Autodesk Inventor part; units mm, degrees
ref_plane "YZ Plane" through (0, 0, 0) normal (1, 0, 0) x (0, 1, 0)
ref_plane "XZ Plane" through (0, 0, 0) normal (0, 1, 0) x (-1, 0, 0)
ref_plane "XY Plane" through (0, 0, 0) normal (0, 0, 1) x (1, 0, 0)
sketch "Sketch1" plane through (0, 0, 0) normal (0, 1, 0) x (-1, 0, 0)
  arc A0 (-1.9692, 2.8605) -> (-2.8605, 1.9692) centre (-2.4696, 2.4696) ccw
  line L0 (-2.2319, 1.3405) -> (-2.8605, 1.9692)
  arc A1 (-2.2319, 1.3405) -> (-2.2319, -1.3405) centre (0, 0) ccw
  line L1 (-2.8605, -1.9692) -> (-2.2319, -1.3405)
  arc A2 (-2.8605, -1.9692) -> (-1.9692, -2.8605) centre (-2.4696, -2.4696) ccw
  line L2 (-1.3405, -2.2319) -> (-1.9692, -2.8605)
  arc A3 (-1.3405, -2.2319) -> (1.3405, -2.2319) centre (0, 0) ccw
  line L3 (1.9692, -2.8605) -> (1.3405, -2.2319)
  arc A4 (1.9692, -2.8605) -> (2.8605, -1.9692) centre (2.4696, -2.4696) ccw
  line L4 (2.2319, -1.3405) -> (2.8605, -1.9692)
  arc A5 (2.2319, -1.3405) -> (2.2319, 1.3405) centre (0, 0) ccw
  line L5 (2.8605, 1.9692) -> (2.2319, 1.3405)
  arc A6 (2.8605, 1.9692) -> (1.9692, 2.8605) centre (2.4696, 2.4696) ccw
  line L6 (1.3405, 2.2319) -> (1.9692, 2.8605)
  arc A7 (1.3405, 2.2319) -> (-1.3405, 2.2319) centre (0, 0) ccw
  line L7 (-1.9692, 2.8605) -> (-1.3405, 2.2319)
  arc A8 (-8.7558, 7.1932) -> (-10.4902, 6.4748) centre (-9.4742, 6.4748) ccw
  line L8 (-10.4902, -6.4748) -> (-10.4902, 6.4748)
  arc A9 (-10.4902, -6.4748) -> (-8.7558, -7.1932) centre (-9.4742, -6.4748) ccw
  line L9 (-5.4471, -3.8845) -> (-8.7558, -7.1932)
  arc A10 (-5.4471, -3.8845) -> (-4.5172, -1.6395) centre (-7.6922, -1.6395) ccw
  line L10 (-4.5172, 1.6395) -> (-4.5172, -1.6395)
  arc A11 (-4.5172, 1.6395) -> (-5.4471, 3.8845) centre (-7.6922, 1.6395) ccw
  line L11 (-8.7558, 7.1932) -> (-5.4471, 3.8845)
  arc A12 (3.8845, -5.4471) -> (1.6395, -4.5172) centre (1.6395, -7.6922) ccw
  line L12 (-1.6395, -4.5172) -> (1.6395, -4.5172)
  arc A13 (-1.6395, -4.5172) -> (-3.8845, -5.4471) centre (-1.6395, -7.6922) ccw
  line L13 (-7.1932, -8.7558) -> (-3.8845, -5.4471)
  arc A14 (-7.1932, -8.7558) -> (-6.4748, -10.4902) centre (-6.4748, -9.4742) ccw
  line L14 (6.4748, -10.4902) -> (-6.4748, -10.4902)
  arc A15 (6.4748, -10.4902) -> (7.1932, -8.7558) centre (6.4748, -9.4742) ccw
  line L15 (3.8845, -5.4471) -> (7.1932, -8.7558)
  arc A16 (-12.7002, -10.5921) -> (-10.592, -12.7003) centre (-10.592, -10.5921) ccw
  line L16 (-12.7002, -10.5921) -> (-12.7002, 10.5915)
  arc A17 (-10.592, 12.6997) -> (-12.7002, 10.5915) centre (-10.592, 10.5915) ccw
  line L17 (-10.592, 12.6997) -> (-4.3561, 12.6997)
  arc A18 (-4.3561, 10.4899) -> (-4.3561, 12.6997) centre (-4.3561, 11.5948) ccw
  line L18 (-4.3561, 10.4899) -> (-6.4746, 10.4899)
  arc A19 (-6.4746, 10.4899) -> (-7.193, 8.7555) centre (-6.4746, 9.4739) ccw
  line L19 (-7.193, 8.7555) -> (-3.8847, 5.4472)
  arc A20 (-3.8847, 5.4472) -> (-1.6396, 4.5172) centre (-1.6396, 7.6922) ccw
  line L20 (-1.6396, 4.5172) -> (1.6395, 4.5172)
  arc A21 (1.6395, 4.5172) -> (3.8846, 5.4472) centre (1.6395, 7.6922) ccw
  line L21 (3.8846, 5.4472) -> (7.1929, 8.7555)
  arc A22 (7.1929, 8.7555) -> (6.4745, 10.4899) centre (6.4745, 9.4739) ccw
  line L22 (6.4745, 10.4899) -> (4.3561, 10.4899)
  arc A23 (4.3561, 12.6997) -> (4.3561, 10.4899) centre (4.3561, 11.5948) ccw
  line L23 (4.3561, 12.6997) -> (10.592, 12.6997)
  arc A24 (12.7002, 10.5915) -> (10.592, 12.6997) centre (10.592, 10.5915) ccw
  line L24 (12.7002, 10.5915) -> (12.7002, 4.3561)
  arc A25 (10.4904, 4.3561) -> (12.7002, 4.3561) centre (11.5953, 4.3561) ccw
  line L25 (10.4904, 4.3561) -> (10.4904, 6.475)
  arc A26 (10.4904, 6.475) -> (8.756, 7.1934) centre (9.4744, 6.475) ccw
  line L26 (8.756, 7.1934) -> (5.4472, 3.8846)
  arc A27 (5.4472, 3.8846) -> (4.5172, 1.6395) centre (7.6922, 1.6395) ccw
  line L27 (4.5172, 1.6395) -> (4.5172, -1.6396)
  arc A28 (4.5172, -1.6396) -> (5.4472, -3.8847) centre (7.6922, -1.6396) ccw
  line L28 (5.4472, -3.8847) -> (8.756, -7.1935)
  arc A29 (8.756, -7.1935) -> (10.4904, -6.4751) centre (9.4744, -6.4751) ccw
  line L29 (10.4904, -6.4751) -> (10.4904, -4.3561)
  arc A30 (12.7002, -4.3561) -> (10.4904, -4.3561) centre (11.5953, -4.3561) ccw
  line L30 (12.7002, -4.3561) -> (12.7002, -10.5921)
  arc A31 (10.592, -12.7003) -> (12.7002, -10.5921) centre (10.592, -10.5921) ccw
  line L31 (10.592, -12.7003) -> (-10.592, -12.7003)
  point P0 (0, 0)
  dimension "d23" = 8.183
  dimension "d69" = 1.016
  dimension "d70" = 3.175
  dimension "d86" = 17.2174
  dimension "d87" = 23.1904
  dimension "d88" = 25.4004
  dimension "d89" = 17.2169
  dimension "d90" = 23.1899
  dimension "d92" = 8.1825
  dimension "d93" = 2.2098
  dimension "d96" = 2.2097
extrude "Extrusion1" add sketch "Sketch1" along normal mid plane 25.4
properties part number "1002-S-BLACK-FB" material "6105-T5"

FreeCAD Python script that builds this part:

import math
import FreeCAD as App
import Part
import Sketcher
from FreeCAD import Vector
Q = App.Units.Quantity

doc = App.newDocument("Part")
body = doc.addObject("PartDesign::Body", "Body")

# Sketch on XZ plane
sketch1 = body.newObject("Sketcher::SketchObject", "Sketch")
sketch1.AttachmentSupport = (doc.getObject("XZ_Plane"), [""])
sketch1.MapMode = "FlatFace"
sketch1.addGeometry([
    Part.LineSegment(Vector(12.7, 10.6, 0), Vector(12.7, -10.6, 0)),  # 0
    Part.ArcOfCircle(Part.Circle(Vector(10.6, -10.6, 0), Vector(0, 0, 1), 2.1), math.radians(-90), math.radians(0)),  # 1
    Part.LineSegment(Vector(10.6, -12.7, 0), Vector(-10.6, -12.7, 0)),  # 2
    Part.ArcOfCircle(Part.Circle(Vector(-10.6, -10.6, 0), Vector(0, 0, 1), 2.1), math.radians(180), math.radians(270)),  # 3
    Part.LineSegment(Vector(-12.7, -10.6, 0), Vector(-12.7, -4.4, 0)),  # 4
    Part.ArcOfCircle(Part.Circle(Vector(-11.6, -4.4, 0), Vector(0, 0, 1), 1.1), math.radians(0), math.radians(180)),  # 5
    Part.LineSegment(Vector(-10.5, -4.4, 0), Vector(-10.5, -6.5, 0)),  # 6
    Part.ArcOfCircle(Part.Circle(Vector(-9.5, -6.5, 0), Vector(0, 0, 1), 1), math.radians(180), math.radians(315)),  # 7
    Part.LineSegment(Vector(-8.8, -7.2, 0), Vector(-5.4, -3.9, 0)),  # 8
    Part.ArcOfCircle(Part.Circle(Vector(-7.7, -1.6, 0), Vector(0, 0, 1), 3.2), math.radians(-45), math.radians(0)),  # 9
    Part.LineSegment(Vector(-4.5, -1.6, 0), Vector(-4.5, 1.6, 0)),  # 10
    Part.ArcOfCircle(Part.Circle(Vector(-7.7, 1.6, 0), Vector(0, 0, 1), 3.2), math.radians(0), math.radians(45)),  # 11
    Part.LineSegment(Vector(-5.4, 3.9, 0), Vector(-8.8, 7.2, 0)),  # 12
    Part.ArcOfCircle(Part.Circle(Vector(-9.5, 6.5, 0), Vector(0, 0, 1), 1), math.radians(45), math.radians(180)),  # 13
    Part.LineSegment(Vector(-10.5, 6.5, 0), Vector(-10.5, 4.4, 0)),  # 14
    Part.ArcOfCircle(Part.Circle(Vector(-11.6, 4.4, 0), Vector(0, 0, 1), 1.1), math.radians(180), math.radians(360)),  # 15
    Part.LineSegment(Vector(-12.7, 4.4, 0), Vector(-12.7, 10.6, 0)),  # 16
    Part.ArcOfCircle(Part.Circle(Vector(-10.6, 10.6, 0), Vector(0, 0, 1), 2.1), math.radians(90), math.radians(180)),  # 17
    Part.LineSegment(Vector(-10.6, 12.7, 0), Vector(-4.4, 12.7, 0)),  # 18
    Part.ArcOfCircle(Part.Circle(Vector(-4.4, 11.6, 0), Vector(0, 0, 1), 1.1), math.radians(-90), math.radians(90)),  # 19
    Part.LineSegment(Vector(-4.4, 10.5, 0), Vector(-6.5, 10.5, 0)),  # 20
    Part.ArcOfCircle(Part.Circle(Vector(-6.5, 9.5, 0), Vector(0, 0, 1), 1), math.radians(90), math.radians(225)),  # 21
    Part.LineSegment(Vector(-7.2, 8.8, 0), Vector(-3.9, 5.4, 0)),  # 22
    Part.ArcOfCircle(Part.Circle(Vector(-1.6, 7.7, 0), Vector(0, 0, 1), 3.2), math.radians(-135), math.radians(-90)),  # 23
    Part.LineSegment(Vector(-1.6, 4.5, 0), Vector(1.6, 4.5, 0)),  # 24
    Part.ArcOfCircle(Part.Circle(Vector(1.6, 7.7, 0), Vector(0, 0, 1), 3.2), math.radians(-90), math.radians(-45)),  # 25
    Part.LineSegment(Vector(3.9, 5.4, 0), Vector(7.2, 8.8, 0)),  # 26
    Part.ArcOfCircle(Part.Circle(Vector(6.5, 9.5, 0), Vector(0, 0, 1), 1), math.radians(-45), math.radians(90)),  # 27
    Part.LineSegment(Vector(6.5, 10.5, 0), Vector(4.4, 10.5, 0)),  # 28
    Part.ArcOfCircle(Part.Circle(Vector(4.4, 11.6, 0), Vector(0, 0, 1), 1.1), math.radians(90), math.radians(270)),  # 29
    Part.LineSegment(Vector(4.4, 12.7, 0), Vector(10.6, 12.7, 0)),  # 30
    Part.ArcOfCircle(Part.Circle(Vector(10.6, 10.6, 0), Vector(0, 0, 1), 2.1), math.radians(0), math.radians(90)),  # 31
    Part.ArcOfCircle(Part.Circle(Vector(-1.6, -7.7, 0), Vector(0, 0, 1), 3.2), math.radians(90), math.radians(135)),  # 32
    Part.LineSegment(Vector(-3.9, -5.4, 0), Vector(-7.2, -8.8, 0)),  # 33
    Part.ArcOfCircle(Part.Circle(Vector(-6.5, -9.5, 0), Vector(0, 0, 1), 1), math.radians(135), math.radians(270)),  # 34
    Part.LineSegment(Vector(-6.5, -10.5, 0), Vector(6.5, -10.5, 0)),  # 35
    Part.ArcOfCircle(Part.Circle(Vector(6.5, -9.5, 0), Vector(0, 0, 1), 1), math.radians(-90), math.radians(45)),  # 36
    Part.LineSegment(Vector(7.2, -8.8, 0), Vector(3.9, -5.4, 0)),  # 37
    Part.ArcOfCircle(Part.Circle(Vector(1.6, -7.7, 0), Vector(0, 0, 1), 3.2), math.radians(45), math.radians(90)),  # 38
    Part.LineSegment(Vector(1.6, -4.5, 0), Vector(-1.6, -4.5, 0)),  # 39
    Part.ArcOfCircle(Part.Circle(Vector(9.5, 6.5, 0), Vector(0, 0, 1), 1), math.radians(0), math.radians(135)),  # 40
    Part.LineSegment(Vector(8.8, 7.2, 0), Vector(5.4, 3.9, 0)),  # 41
    Part.ArcOfCircle(Part.Circle(Vector(7.7, 1.6, 0), Vector(0, 0, 1), 3.2), math.radians(135), math.radians(180)),  # 42
    Part.LineSegment(Vector(4.5, 1.6, 0), Vector(4.5, -1.6, 0)),  # 43
    Part.ArcOfCircle(Part.Circle(Vector(7.7, -1.6, 0), Vector(0, 0, 1), 3.2), math.radians(180), math.radians(225)),  # 44
    Part.LineSegment(Vector(5.4, -3.9, 0), Vector(8.8, -7.2, 0)),  # 45
    Part.ArcOfCircle(Part.Circle(Vector(9.5, -6.5, 0), Vector(0, 0, 1), 1), math.radians(-135), math.radians(0)),  # 46
    Part.LineSegment(Vector(10.5, -6.5, 0), Vector(10.5, 6.5, 0)),  # 47
    Part.ArcOfCircle(Part.Circle(Vector(2.5, 2.5, 0), Vector(0, 0, 1), 0.6), math.radians(-52), math.radians(142)),  # 48
    Part.LineSegment(Vector(2, 2.9, 0), Vector(1.3, 2.2, 0)),  # 49
    Part.ArcOfCircle(Part.Circle(Vector(0, 0, 0), Vector(0, 0, 1), 2.6), math.radians(59), math.radians(121)),  # 50
    Part.LineSegment(Vector(-1.3, 2.2, 0), Vector(-2, 2.9, 0)),  # 51
    Part.ArcOfCircle(Part.Circle(Vector(-2.5, 2.5, 0), Vector(0, 0, 1), 0.6), math.radians(38), math.radians(232)),  # 52
    Part.LineSegment(Vector(-2.9, 2, 0), Vector(-2.2, 1.3, 0)),  # 53
    Part.ArcOfCircle(Part.Circle(Vector(0, 0, 0), Vector(0, 0, 1), 2.6), math.radians(149), math.radians(211)),  # 54
    Part.LineSegment(Vector(-2.2, -1.3, 0), Vector(-2.9, -2, 0)),  # 55
    Part.ArcOfCircle(Part.Circle(Vector(-2.5, -2.5, 0), Vector(0, 0, 1), 0.6), math.radians(128), math.radians(322)),  # 56
    Part.LineSegment(Vector(-2, -2.9, 0), Vector(-1.3, -2.2, 0)),  # 57
    Part.ArcOfCircle(Part.Circle(Vector(0, 0, 0), Vector(0, 0, 1), 2.6), math.radians(-121), math.radians(-59)),  # 58
    Part.LineSegment(Vector(1.3, -2.2, 0), Vector(2, -2.9, 0)),  # 59
    Part.ArcOfCircle(Part.Circle(Vector(2.5, -2.5, 0), Vector(0, 0, 1), 0.6), math.radians(-142), math.radians(52)),  # 60
    Part.LineSegment(Vector(2.9, -2, 0), Vector(2.2, -1.3, 0)),  # 61
    Part.ArcOfCircle(Part.Circle(Vector(0, 0, 0), Vector(0, 0, 1), 2.6), math.radians(-31), math.radians(31)),  # 62
    Part.LineSegment(Vector(2.2, 1.3, 0), Vector(2.9, 2, 0)),  # 63
], False)
sketch1.addConstraint([
    Sketcher.Constraint("Tangent", 0, 2, 1, 2),
    Sketcher.Constraint("Tangent", 1, 1, 2, 1),
    Sketcher.Constraint("Tangent", 2, 2, 3, 2),
    Sketcher.Constraint("Tangent", 3, 1, 4, 1),
    Sketcher.Constraint("Tangent", 4, 2, 5, 2),
    Sketcher.Constraint("Tangent", 5, 1, 6, 1),
    Sketcher.Constraint("Tangent", 6, 2, 7, 1),
    Sketcher.Constraint("Tangent", 7, 2, 8, 1),
    Sketcher.Constraint("Tangent", 8, 2, 9, 1),
    Sketcher.Constraint("Tangent", 9, 2, 10, 1),
    Sketcher.Constraint("Tangent", 10, 2, 11, 1),
    Sketcher.Constraint("Tangent", 11, 2, 12, 1),
    Sketcher.Constraint("Tangent", 12, 2, 13, 1),
    Sketcher.Constraint("Tangent", 13, 2, 14, 1),
    Sketcher.Constraint("Tangent", 14, 2, 15, 2),
    Sketcher.Constraint("Tangent", 15, 1, 16, 1),
    Sketcher.Constraint("Tangent", 16, 2, 17, 2),
    Sketcher.Constraint("Tangent", 17, 1, 18, 1),
    Sketcher.Constraint("Tangent", 18, 2, 19, 2),
    Sketcher.Constraint("Tangent", 19, 1, 20, 1),
    Sketcher.Constraint("Tangent", 20, 2, 21, 1),
    Sketcher.Constraint("Tangent", 21, 2, 22, 1),
    Sketcher.Constraint("Tangent", 22, 2, 23, 1),
    Sketcher.Constraint("Tangent", 23, 2, 24, 1),
    Sketcher.Constraint("Tangent", 24, 2, 25, 1),
    Sketcher.Constraint("Tangent", 25, 2, 26, 1),
    Sketcher.Constraint("Tangent", 26, 2, 27, 1),
    Sketcher.Constraint("Tangent", 27, 2, 28, 1),
    Sketcher.Constraint("Tangent", 28, 2, 29, 2),
    Sketcher.Constraint("Tangent", 29, 1, 30, 1),
    Sketcher.Constraint("Tangent", 30, 2, 31, 2),
    Sketcher.Constraint("Tangent", 31, 1, 0, 1),
    Sketcher.Constraint("Tangent", 32, 2, 33, 1),
    Sketcher.Constraint("Tangent", 33, 2, 34, 1),
    Sketcher.Constraint("Tangent", 34, 2, 35, 1),
    Sketcher.Constraint("Tangent", 35, 2, 36, 1),
    Sketcher.Constraint("Tangent", 36, 2, 37, 1),
    Sketcher.Constraint("Tangent", 37, 2, 38, 1),
    Sketcher.Constraint("Tangent", 38, 2, 39, 1),
    Sketcher.Constraint("Tangent", 39, 2, 32, 1),
    Sketcher.Constraint("Tangent", 40, 2, 41, 1),
    Sketcher.Constraint("Tangent", 41, 2, 42, 1),
    Sketcher.Constraint("Tangent", 42, 2, 43, 1),
    Sketcher.Constraint("Tangent", 43, 2, 44, 1),
    Sketcher.Constraint("Tangent", 44, 2, 45, 1),
    Sketcher.Constraint("Tangent", 45, 2, 46, 1),
    Sketcher.Constraint("Tangent", 46, 2, 47, 1),
    Sketcher.Constraint("Tangent", 47, 2, 40, 1),
    Sketcher.Constraint("Coincident", 48, 2, 49, 1),
    Sketcher.Constraint("Coincident", 49, 2, 50, 1),
    Sketcher.Constraint("Coincident", 50, 2, 51, 1),
    Sketcher.Constraint("Coincident", 51, 2, 52, 1),
    Sketcher.Constraint("Coincident", 52, 2, 53, 1),
    Sketcher.Constraint("Coincident", 53, 2, 54, 1),
    Sketcher.Constraint("Coincident", 54, 2, 55, 1),
    Sketcher.Constraint("Coincident", 55, 2, 56, 1),
    Sketcher.Constraint("Coincident", 56, 2, 57, 1),
    Sketcher.Constraint("Coincident", 57, 2, 58, 1),
    Sketcher.Constraint("Coincident", 58, 2, 59, 1),
    Sketcher.Constraint("Coincident", 59, 2, 60, 1),
    Sketcher.Constraint("Coincident", 60, 2, 61, 1),
    Sketcher.Constraint("Coincident", 61, 2, 62, 1),
    Sketcher.Constraint("Coincident", 62, 2, 63, 1),
    Sketcher.Constraint("Coincident", 63, 2, 48, 1),
    Sketcher.Constraint("Vertical", 0),
    Sketcher.Constraint("Horizontal", 2),
    Sketcher.Constraint("Vertical", 4),
    Sketcher.Constraint("Vertical", 6),
    Sketcher.Constraint("Vertical", 10),
    Sketcher.Constraint("Vertical", 14),
    Sketcher.Constraint("Vertical", 16),
    Sketcher.Constraint("Horizontal", 18),
    Sketcher.Constraint("Horizontal", 20),
    Sketcher.Constraint("Horizontal", 24),
    Sketcher.Constraint("Horizontal", 28),
    Sketcher.Constraint("Horizontal", 30),
    Sketcher.Constraint("Horizontal", 35),
    Sketcher.Constraint("Horizontal", 39),
    Sketcher.Constraint("Vertical", 43),
    Sketcher.Constraint("Vertical", 47),
    Sketcher.Constraint("Coincident", 50, 3, -1, 1),
    Sketcher.Constraint("Coincident", 54, 3, -1, 1),
    Sketcher.Constraint("Coincident", 58, 3, -1, 1),
    Sketcher.Constraint("Coincident", 62, 3, -1, 1),
    Sketcher.Constraint("Equal", 1, 3),
    Sketcher.Constraint("Equal", 9, 11),
    Sketcher.Constraint("Equal", 7, 13),
    Sketcher.Constraint("Equal", 5, 15),
    Sketcher.Constraint("Equal", 3, 17),
    Sketcher.Constraint("Equal", 15, 19),
    Sketcher.Constraint("Equal", 13, 21),
    Sketcher.Constraint("Equal", 11, 23),
    Sketcher.Constraint("Equal", 23, 25),
    Sketcher.Constraint("Equal", 21, 27),
    Sketcher.Constraint("Equal", 19, 29),
    Sketcher.Constraint("Equal", 17, 31),
    Sketcher.Constraint("Equal", 25, 32),
    Sketcher.Constraint("Equal", 27, 34),
    Sketcher.Constraint("Equal", 34, 36),
    Sketcher.Constraint("Equal", 32, 38),
    Sketcher.Constraint("Equal", 36, 40),
    Sketcher.Constraint("Equal", 38, 42),
    Sketcher.Constraint("Equal", 42, 44),
    Sketcher.Constraint("Equal", 40, 46),
    Sketcher.Constraint("Equal", 48, 52),
    Sketcher.Constraint("Equal", 50, 54),
    Sketcher.Constraint("Equal", 52, 56),
    Sketcher.Constraint("Equal", 54, 58),
    Sketcher.Constraint("Equal", 56, 60),
    Sketcher.Constraint("Equal", 58, 62),
    Sketcher.Constraint("Symmetric", 25, 3, 32, 3, -1, 1),
    Sketcher.Constraint("Symmetric", 27, 3, 34, 3, -1, 1),
    Sketcher.Constraint("Symmetric", 7, 3, 40, 3, -1, 1),
    Sketcher.Constraint("Symmetric", 9, 3, 42, 3, -1, 1),
    Sketcher.Constraint("Symmetric", 13, 3, 46, 3, -1, 1),
    Sketcher.Constraint("Symmetric", 48, 3, 56, 3, -1, 1),
    Sketcher.Constraint("Symmetric", 52, 3, 60, 3, -1, 1),
    Sketcher.Constraint("Symmetric", 22, 2, 37, 2, -1, 1),
    Sketcher.Constraint("Symmetric", 21, 3, 27, 3, -2),
    Sketcher.Constraint("Symmetric", 48, 3, 52, 3, -2),
    Sketcher.Constraint("Symmetric", 12, 2, 40, 2, -2),
    Sketcher.Constraint("Perpendicular", 8, 12),
    Sketcher.Constraint("Parallel", 12, 22),
    Sketcher.Constraint("Perpendicular", 22, 26),
    Sketcher.Constraint("Perpendicular", 41, 45),
    Sketcher.Constraint("Perpendicular", 45, 49),
    Sketcher.Constraint("Perpendicular", 49, 51),
    Sketcher.Constraint("Parallel", 51, 53),
    Sketcher.Constraint("Perpendicular", 53, 55),
    Sketcher.Constraint("Parallel", 55, 57),
    Sketcher.Constraint("Perpendicular", 57, 59),
    Sketcher.Constraint("Parallel", 59, 61),
    Sketcher.Constraint("Perpendicular", 61, 63),
    Sketcher.Constraint("Horizontal", 49, 2, 50, 2),
    Sketcher.Constraint("Horizontal", 57, 2, 58, 2),
    Sketcher.Constraint("Horizontal", 55, 2, 60, 2),
    Sketcher.Constraint("Horizontal", 53, 2, 62, 2),
    Sketcher.Constraint("Vertical", 53, 2, 54, 2),
    Sketcher.Constraint("Vertical", 51, 2, 56, 2),
    Sketcher.Constraint("Equal", 20, 28),
    Sketcher.Constraint("Equal", 18, 30),
    Sketcher.Constraint("Equal", 30, 4),
    Sketcher.Constraint("Equal", 39, 10),
    Sketcher.Constraint("Equal", 6, 14),
    Sketcher.Constraint("Equal", 35, 47),
    Sketcher.Constraint("Equal", 51, 53),
    Sketcher.Constraint("Radius", 7, Q("0.04 in")),
    Sketcher.Constraint("Radius", 9, Q("0.125 in")),
    Sketcher.Constraint("Radius", 5, Q("0.0435 in")),
    Sketcher.Constraint("Radius", 1, Q("0.083 in")),
    Sketcher.Constraint("Radius", 48, Q("0.025 in")),
    Sketcher.Constraint("DistanceX", -1, 1, 0, 2, Q("0.5 in")),
    Sketcher.Constraint("DistanceY", 1, 1, -1, 1, Q("0.5 in")),
    Sketcher.Constraint("DistanceY", -1, 1, 17, 1, Q("0.5 in")),
    Sketcher.Constraint("Radius", 50, Q("0.1025 in")),
    Sketcher.Constraint("Distance", 49, Q("0.035 in")),
    Sketcher.Constraint("DistanceX", 18, 1, 18, 2, Q("0.2455 in")),
    Sketcher.Constraint("DistanceX", 20, 2, 20, 1, Q("0.0834 in")),
    Sketcher.Constraint("DistanceX", 24, 1, 24, 2, Q("0.1291 in")),
    Sketcher.Constraint("DistanceX", -1, 1, 48, 3, 2.4696),
    Sketcher.Constraint("DistanceY", -1, 1, 48, 3, 2.4696),
])
pad1 = body.newObject("PartDesign::Pad", "Pad")
pad1.Profile = sketch1
pad1.Length = Q("1 in")
pad1.Midplane = True

doc.recompute()
